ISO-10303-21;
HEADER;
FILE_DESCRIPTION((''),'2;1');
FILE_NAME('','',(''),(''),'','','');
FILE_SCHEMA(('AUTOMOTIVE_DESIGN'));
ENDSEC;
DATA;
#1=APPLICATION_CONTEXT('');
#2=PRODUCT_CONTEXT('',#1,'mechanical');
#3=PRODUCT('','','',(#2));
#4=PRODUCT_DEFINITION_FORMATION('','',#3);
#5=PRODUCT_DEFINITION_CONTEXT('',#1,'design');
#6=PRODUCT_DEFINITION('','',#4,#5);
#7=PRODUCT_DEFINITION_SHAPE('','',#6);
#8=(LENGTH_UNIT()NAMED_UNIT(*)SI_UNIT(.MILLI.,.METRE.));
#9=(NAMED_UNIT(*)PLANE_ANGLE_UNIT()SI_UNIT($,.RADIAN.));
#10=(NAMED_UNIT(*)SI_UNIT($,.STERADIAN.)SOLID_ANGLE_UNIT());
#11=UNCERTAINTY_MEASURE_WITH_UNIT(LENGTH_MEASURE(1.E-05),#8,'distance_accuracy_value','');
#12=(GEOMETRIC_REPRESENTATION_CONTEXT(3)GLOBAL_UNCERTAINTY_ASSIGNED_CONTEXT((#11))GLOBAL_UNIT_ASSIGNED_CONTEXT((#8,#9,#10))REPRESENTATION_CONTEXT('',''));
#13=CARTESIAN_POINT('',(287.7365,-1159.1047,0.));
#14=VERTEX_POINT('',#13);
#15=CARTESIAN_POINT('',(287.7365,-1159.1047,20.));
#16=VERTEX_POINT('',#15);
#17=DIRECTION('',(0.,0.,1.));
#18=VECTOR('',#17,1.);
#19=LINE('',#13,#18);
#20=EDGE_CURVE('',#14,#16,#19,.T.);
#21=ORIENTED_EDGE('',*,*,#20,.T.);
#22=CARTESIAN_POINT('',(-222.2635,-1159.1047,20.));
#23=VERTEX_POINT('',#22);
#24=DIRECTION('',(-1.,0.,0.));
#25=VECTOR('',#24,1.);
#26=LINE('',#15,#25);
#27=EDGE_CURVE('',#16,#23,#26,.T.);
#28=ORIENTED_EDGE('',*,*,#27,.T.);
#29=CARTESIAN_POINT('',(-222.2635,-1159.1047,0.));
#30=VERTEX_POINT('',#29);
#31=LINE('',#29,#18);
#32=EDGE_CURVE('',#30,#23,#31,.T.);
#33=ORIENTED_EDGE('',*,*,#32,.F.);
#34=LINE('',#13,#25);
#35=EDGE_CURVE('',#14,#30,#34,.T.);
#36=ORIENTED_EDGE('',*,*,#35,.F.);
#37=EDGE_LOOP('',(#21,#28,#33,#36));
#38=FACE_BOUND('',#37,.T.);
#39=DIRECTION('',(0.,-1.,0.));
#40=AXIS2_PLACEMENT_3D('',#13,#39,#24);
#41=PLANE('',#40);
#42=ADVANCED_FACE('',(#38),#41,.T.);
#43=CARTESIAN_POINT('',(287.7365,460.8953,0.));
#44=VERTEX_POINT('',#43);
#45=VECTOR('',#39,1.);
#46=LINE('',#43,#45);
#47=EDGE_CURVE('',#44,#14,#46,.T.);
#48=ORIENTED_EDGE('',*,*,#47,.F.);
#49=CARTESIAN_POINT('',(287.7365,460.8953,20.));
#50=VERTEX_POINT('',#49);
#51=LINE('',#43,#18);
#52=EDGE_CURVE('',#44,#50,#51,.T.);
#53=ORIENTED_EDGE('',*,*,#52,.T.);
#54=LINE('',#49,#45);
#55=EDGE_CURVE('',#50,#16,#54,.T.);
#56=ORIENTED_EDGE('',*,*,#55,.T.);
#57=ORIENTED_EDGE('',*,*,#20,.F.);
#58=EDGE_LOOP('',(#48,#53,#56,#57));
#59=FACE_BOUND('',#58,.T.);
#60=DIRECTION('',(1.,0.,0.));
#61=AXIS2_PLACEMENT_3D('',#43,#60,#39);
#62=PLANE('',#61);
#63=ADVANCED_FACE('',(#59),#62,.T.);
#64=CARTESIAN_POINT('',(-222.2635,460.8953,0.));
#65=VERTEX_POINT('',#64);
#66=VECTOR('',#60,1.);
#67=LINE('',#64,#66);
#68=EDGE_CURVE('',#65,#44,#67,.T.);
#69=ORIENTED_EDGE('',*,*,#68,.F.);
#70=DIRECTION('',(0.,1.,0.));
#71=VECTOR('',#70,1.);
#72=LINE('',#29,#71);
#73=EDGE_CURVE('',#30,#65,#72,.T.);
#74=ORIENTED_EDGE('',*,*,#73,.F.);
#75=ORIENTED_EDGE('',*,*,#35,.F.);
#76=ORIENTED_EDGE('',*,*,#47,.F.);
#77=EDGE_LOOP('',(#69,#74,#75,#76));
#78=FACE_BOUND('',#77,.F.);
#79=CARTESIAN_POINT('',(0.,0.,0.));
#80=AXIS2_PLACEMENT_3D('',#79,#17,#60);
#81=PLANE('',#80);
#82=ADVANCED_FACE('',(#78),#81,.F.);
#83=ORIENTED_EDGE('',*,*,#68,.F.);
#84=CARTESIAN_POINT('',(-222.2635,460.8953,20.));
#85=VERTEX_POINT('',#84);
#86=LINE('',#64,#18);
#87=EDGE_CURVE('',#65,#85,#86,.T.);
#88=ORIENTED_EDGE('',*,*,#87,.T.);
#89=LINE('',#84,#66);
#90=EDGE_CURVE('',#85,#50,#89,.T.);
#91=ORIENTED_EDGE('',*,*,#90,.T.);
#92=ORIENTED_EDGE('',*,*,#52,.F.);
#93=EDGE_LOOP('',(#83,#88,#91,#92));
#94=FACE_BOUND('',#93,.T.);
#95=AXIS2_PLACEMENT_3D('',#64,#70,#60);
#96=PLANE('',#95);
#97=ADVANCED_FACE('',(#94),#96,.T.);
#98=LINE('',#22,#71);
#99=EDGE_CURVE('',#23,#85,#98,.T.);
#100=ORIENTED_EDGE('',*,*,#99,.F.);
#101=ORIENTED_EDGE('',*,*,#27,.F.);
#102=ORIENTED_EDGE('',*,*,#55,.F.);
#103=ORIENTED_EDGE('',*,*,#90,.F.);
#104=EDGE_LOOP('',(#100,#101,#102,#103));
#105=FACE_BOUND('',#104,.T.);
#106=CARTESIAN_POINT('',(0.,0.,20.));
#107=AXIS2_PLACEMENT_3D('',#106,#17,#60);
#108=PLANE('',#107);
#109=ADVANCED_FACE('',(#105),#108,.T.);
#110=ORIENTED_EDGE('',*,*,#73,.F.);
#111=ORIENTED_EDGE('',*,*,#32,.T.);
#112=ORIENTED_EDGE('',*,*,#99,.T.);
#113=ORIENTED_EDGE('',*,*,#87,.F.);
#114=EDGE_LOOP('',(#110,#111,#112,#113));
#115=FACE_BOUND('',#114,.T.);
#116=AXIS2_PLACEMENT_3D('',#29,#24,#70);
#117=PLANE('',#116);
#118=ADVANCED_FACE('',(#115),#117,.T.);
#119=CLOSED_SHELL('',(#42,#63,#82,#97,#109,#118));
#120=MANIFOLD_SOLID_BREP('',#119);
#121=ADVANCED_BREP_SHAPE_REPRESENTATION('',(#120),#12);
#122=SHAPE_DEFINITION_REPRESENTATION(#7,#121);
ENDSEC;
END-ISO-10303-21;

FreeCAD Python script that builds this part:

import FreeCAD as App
import Part
import Sketcher

V = App.Vector


def add_polygon(sketch, points):
    """Adds a closed chain of lines whose ends are joined by coincident constraints."""
    first, n = sketch.GeometryCount, len(points)
    for a, b in zip(points, points[1:] + points[:1]):
        sketch.addGeometry(Part.LineSegment(App.Vector(*a, 0), App.Vector(*b, 0)), False)
    for i in range(n):
        sketch.addConstraint(Sketcher.Constraint("Coincident", first + i, 2, first + (i + 1) % n, 1))

doc = App.newDocument("Part")
params = doc.addObject("Spreadsheet::Sheet", "Params")
for row, (alias, value) in enumerate([
    ("sketch1_width", "510 mm"),
    ("sketch1_height", "1620 mm"),
    ("pad1_length", "20 mm"),
], start=1):
    params.set(f"A{row}", alias)
    params.set(f"B{row}", "=" + value)
    params.setAlias(f"B{row}", alias)

body = doc.addObject("PartDesign::Body", "Body")

sketch1 = body.newObject("Sketcher::SketchObject", "Sketch")
sketch1.AttachmentSupport = (doc.getObject("XY_Plane"), [""])
sketch1.MapMode = "FlatFace"
add_polygon(sketch1, [(288, 461), (-222, 461), (-222, -1159), (288, -1159)])
sketch1.addConstraint([
    Sketcher.Constraint("Horizontal", 0),
    Sketcher.Constraint("Vertical", 1),
    Sketcher.Constraint("Horizontal", 2),
    Sketcher.Constraint("Vertical", 3),
    Sketcher.Constraint("DistanceX", 0, 2, 0, 1, 510.0),
    Sketcher.Constraint("DistanceY", 1, 2, 1, 1, 1620.0),
    Sketcher.Constraint("DistanceX", 0, 2, -1, 1, 222.2635),
    Sketcher.Constraint("DistanceY", -1, 1, 0, 2, 460.8953),
])
sketch1.setExpression("Constraints[8]", "Params.sketch1_width")
sketch1.setExpression("Constraints[9]", "Params.sketch1_height")
pad1 = body.newObject("PartDesign::Pad", "Pad")
pad1.Profile = sketch1
pad1.setExpression("Length", "Params.pad1_length")

doc.recompute()
